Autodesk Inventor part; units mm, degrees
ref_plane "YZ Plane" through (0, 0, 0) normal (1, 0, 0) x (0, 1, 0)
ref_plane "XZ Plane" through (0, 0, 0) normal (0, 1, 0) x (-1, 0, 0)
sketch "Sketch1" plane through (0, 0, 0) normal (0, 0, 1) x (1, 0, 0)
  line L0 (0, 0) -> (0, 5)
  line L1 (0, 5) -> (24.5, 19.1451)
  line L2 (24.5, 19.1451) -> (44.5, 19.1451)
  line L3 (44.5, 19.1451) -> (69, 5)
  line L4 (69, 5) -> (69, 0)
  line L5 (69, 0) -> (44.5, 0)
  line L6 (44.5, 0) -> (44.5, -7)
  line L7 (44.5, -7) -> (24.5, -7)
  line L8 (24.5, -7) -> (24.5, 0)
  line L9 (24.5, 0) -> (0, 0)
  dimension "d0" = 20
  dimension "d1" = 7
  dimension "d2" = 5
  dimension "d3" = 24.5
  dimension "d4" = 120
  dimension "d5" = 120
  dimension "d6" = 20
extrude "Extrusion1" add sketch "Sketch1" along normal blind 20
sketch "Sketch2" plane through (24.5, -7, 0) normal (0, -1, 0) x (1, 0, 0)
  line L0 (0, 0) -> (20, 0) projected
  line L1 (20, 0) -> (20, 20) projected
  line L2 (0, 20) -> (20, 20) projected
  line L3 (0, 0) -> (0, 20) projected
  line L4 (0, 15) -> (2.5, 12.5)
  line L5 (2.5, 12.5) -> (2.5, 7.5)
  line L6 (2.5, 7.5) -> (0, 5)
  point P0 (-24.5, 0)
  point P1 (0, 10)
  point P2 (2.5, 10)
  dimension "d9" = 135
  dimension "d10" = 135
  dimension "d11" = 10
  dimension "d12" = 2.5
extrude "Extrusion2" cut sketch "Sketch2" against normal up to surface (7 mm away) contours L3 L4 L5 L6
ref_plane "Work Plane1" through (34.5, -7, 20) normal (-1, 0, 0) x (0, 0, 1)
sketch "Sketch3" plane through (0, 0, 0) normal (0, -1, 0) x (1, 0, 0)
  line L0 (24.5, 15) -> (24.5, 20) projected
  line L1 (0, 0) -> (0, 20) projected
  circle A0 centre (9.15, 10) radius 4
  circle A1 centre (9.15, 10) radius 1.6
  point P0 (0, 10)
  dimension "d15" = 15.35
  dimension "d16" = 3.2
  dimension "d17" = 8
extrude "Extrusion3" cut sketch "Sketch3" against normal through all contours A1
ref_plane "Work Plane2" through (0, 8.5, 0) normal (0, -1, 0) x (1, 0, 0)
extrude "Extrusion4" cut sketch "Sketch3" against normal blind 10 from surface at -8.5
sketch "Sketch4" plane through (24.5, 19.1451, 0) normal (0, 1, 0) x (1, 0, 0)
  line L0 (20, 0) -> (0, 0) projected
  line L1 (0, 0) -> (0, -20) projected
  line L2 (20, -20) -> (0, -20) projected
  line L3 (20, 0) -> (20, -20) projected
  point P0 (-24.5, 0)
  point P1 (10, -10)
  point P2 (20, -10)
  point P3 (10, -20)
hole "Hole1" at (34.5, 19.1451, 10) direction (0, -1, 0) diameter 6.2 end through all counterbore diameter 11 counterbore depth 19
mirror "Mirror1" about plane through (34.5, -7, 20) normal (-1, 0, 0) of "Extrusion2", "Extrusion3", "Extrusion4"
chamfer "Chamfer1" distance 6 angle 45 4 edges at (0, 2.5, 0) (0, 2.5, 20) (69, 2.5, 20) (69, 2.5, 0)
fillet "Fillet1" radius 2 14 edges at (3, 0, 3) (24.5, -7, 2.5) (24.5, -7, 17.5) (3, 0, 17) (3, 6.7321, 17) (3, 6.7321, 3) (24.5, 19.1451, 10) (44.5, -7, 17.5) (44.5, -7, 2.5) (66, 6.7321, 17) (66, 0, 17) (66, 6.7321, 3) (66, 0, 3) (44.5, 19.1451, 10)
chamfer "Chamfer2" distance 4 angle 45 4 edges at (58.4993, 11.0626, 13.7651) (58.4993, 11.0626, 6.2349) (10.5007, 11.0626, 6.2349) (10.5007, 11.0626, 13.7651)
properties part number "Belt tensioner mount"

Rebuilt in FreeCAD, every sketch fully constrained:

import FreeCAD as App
import Part
import Sketcher
from FreeCAD import Vector
Q = App.Units.Quantity


def edges_at(feature, points):
    """Names of the edges that pass closest to the given points."""
    edges = feature.Shape.Edges
    near = lambda p: min(range(len(edges)), key=lambda i: edges[i].distToShape(Part.Vertex(*p))[0])
    return sorted({f"Edge{near(p) + 1}" for p in points})

doc = App.newDocument("Part")
body = doc.addObject("PartDesign::Body", "Body")

# Sketch on XY plane
sketch1 = doc.addObject("Sketcher::SketchObject", "Sketch")
body.addObject(sketch1)
sketch1.AttachmentSupport = (doc.XY_Plane, [""])
sketch1.MapMode = "FlatFace"
sketch1.addGeometry([
    Part.LineSegment(Vector(0, 5, 0), Vector(0, 0, 0)),  # 0
    Part.LineSegment(Vector(0, 0, 0), Vector(24.5, 0, 0)),  # 1
    Part.LineSegment(Vector(24.5, 0, 0), Vector(24.5, -7, 0)),  # 2
    Part.LineSegment(Vector(24.5, -7, 0), Vector(44.5, -7, 0)),  # 3
    Part.LineSegment(Vector(44.5, -7, 0), Vector(44.5, 0, 0)),  # 4
    Part.LineSegment(Vector(44.5, 0, 0), Vector(69, 0, 0)),  # 5
    Part.LineSegment(Vector(69, 0, 0), Vector(69, 5, 0)),  # 6
    Part.LineSegment(Vector(69, 5, 0), Vector(44.5, 19.1451, 0)),  # 7
    Part.LineSegment(Vector(44.5, 19.1451, 0), Vector(24.5, 19.1451, 0)),  # 8
    Part.LineSegment(Vector(24.5, 19.1451, 0), Vector(0, 5, 0)),  # 9
], False)
sketch1.addConstraint([
    Sketcher.Constraint("Coincident", 0, 2, 1, 1),
    Sketcher.Constraint("Coincident", 1, 2, 2, 1),
    Sketcher.Constraint("Coincident", 2, 2, 3, 1),
    Sketcher.Constraint("Coincident", 3, 2, 4, 1),
    Sketcher.Constraint("Coincident", 4, 2, 5, 1),
    Sketcher.Constraint("Coincident", 5, 2, 6, 1),
    Sketcher.Constraint("Coincident", 6, 2, 7, 1),
    Sketcher.Constraint("Coincident", 7, 2, 8, 1),
    Sketcher.Constraint("Coincident", 8, 2, 9, 1),
    Sketcher.Constraint("Coincident", 9, 2, 0, 1),
    Sketcher.Constraint("Vertical", 0),
    Sketcher.Constraint("Horizontal", 1),
    Sketcher.Constraint("Vertical", 2),
    Sketcher.Constraint("Horizontal", 3),
    Sketcher.Constraint("Vertical", 4),
    Sketcher.Constraint("Horizontal", 5),
    Sketcher.Constraint("Vertical", 6),
    Sketcher.Constraint("Horizontal", 8),
    Sketcher.Constraint("Coincident", 0, 2, -1, 1),
    Sketcher.Constraint("PointOnObject", 4, 2, -1),
    Sketcher.Constraint("Horizontal", 6, 2, 9, 2),
    Sketcher.Constraint("Vertical", 4, 2, 7, 2),
    Sketcher.Constraint("Vertical", 2, 2, 8, 2),
    Sketcher.Constraint("Equal", 1, 5),
    Sketcher.Constraint("DistanceX", 3, 1, 3, 2, 20.0),
    Sketcher.Constraint("DistanceY", 0, 2, 0, 1, 5.0),
    Sketcher.Constraint("DistanceY", 2, 2, 2, 1, 7.0),
    Sketcher.Constraint("DistanceX", 1, 1, 1, 2, 24.5),
    Sketcher.Constraint("Angle", 7, Q("150 deg")),
])
pad1 = doc.addObject("PartDesign::Pad", "Pad")
body.addObject(pad1)
pad1.Profile = sketch1
pad1.Length = 20

# Sketch on XZ plane
sketch2 = doc.addObject("Sketcher::SketchObject", "Sketch001")
body.addObject(sketch2)
sketch2.AttachmentSupport = (doc.XZ_Plane, [""])
sketch2.MapMode = "FlatFace"
sketch2.AttachmentOffset = App.Placement(Vector(0, 0, 7), App.Rotation())
sketch2.addGeometry([
    Part.LineSegment(Vector(24.5, 15, 0), Vector(24.5, 5, 0)),
    Part.LineSegment(Vector(24.5, 5, 0), Vector(27, 7.5, 0)),
    Part.LineSegment(Vector(27, 7.5, 0), Vector(27, 12.5, 0)),
    Part.LineSegment(Vector(27, 12.5, 0), Vector(24.5, 15, 0)),
], False)
sketch2.addConstraint([
    Sketcher.Constraint("Coincident", 0, 2, 1, 1),
    Sketcher.Constraint("Coincident", 1, 2, 2, 1),
    Sketcher.Constraint("Coincident", 2, 2, 3, 1),
    Sketcher.Constraint("Coincident", 3, 2, 0, 1),
    Sketcher.Constraint("Vertical", 0),
    Sketcher.Constraint("Vertical", 2),
    Sketcher.Constraint("Perpendicular", 1, 3),
    Sketcher.Constraint("Equal", 1, 3),
    Sketcher.Constraint("DistanceY", 0, 2, 0, 1, 10.0),
    Sketcher.Constraint("DistanceX", 0, 2, 1, 2, 2.5),
    Sketcher.Constraint("DistanceY", -1, 1, 0, 2, 5.0),
    Sketcher.Constraint("DistanceX", -1, 1, 1, 2, 27.0),
])
pocket1 = doc.addObject("PartDesign::Pocket", "Pocket")
body.addObject(pocket1)
pocket1.Profile = sketch2
pocket1.Length = 7

# Sketch on XZ plane
sketch3 = doc.addObject("Sketcher::SketchObject", "Sketch002")
body.addObject(sketch3)
sketch3.AttachmentSupport = (doc.XZ_Plane, [""])
sketch3.MapMode = "FlatFace"
sketch3.addGeometry(Part.Circle(Vector(9.15, 10, 0), Vector(0, 0, 1), 1.6), False)
sketch3.addConstraint([
    Sketcher.Constraint("Diameter", 0, 3.2),
    Sketcher.Constraint("DistanceY", -1, 1, 0, 3, 10.0),
    Sketcher.Constraint("DistanceX", -1, 1, 0, 3, 9.15),
])
pocket2 = doc.addObject("PartDesign::Pocket", "Pocket001")
body.addObject(pocket2)
pocket2.Profile = sketch3
pocket2.Type = "ThroughAll"

# Sketch on XZ plane
sketch4 = doc.addObject("Sketcher::SketchObject", "Sketch003")
body.addObject(sketch4)
sketch4.AttachmentSupport = (doc.XZ_Plane, [""])
sketch4.MapMode = "FlatFace"
sketch4.AttachmentOffset = App.Placement(Vector(0, 0, -8.5), App.Rotation())
sketch4.addGeometry([
    Part.Circle(Vector(9.15, 10, 0), Vector(0, 0, 1), 4),
    Part.Circle(Vector(9.15, 10, 0), Vector(0, 0, 1), 1.6),
], False)
sketch4.addConstraint([
    Sketcher.Constraint("Coincident", 1, 3, 0, 3),
    Sketcher.Constraint("Diameter", 0, 8.0),
    Sketcher.Constraint("Diameter", 1, 3.2),
    Sketcher.Constraint("DistanceY", -1, 1, 0, 3, 10.0),
    Sketcher.Constraint("DistanceX", -1, 1, 0, 3, 9.15),
])
pocket3 = doc.addObject("PartDesign::Pocket", "Pocket002")
body.addObject(pocket3)
pocket3.Profile = sketch4
pocket3.Length = 10

# Sketch on XZ plane
sketch5 = doc.addObject("Sketcher::SketchObject", "Sketch004")
body.addObject(sketch5)
sketch5.AttachmentSupport = (doc.XZ_Plane, [""])
sketch5.MapMode = "FlatFace"
sketch5.AttachmentOffset = App.Placement(Vector(0, 0, -19.1451), App.Rotation())
sketch5.addGeometry(Part.Circle(Vector(34.5, 10, 0), Vector(0, 0, 1), 3.1), False)
sketch5.addConstraint([
    Sketcher.Constraint("Diameter", 0, 6.2),
    Sketcher.Constraint("DistanceY", -1, 1, 0, 3, 10.0),
    Sketcher.Constraint("DistanceX", -1, 1, 0, 3, 34.5),
])
doc.recompute()
hole = doc.addObject("PartDesign::Hole", "Hole")
body.addObject(hole)
hole.Profile = sketch5
hole.ThreadType = "None"
hole.Diameter = 6.2
hole.DepthType = "ThroughAll"
hole.HoleCutType = "Counterbore"
hole.HoleCutDiameter = 11
hole.HoleCutDepth = 19
hole.Reversed = True
doc.recompute()

datumplane = doc.addObject("PartDesign::Plane", "DatumPlane")
body.addObject(datumplane)
datumplane.AttachmentSupport = (doc.YZ_Plane, [""])
datumplane.MapMode = "FlatFace"
datumplane.AttachmentOffset = App.Placement(Vector(0, 0, 34.5), App.Rotation())
mirrored = doc.addObject("PartDesign::Mirrored", "Mirrored")
body.addObject(mirrored)
mirrored.Originals = [pocket1, pocket2, pocket3]
mirrored.MirrorPlane = (datumplane, [""])
body.Tip = mirrored
doc.recompute()

chamfer = doc.addObject("PartDesign::Chamfer", "Chamfer")
body.addObject(chamfer)
chamfer.Base = (mirrored, edges_at(mirrored, [
    (0, 2.5, 0),
    (0, 2.5, 20),
    (69, 2.5, 20),
    (69, 2.5, 0),
]))
chamfer.Size = 6
doc.recompute()

fillet = doc.addObject("PartDesign::Fillet", "Fillet")
body.addObject(fillet)
fillet.Base = (chamfer, edges_at(chamfer, [
    (3, 0, 3),
    (24.5, -7, 2.5),
    (24.5, -7, 17.5),
    (3, 0, 17),
    (3, 6.732, 17),
    (3, 6.732, 3),
    (24.5, 19.145, 10),
    (44.5, -7, 17.5),
    (44.5, -7, 2.5),
    (66, 6.732, 17),
    (66, 0, 17),
    (66, 6.732, 3),
    (66, 0, 3),
    (44.5, 19.145, 10),
]))
fillet.Radius = 2
doc.recompute()

chamfer2 = doc.addObject("PartDesign::Chamfer", "Chamfer001")
body.addObject(chamfer2)
chamfer2.Base = (fillet, edges_at(fillet, [
    (58.499, 11.063, 13.765),
    (58.499, 11.063, 6.235),
    (10.501, 11.063, 6.235),
    (10.501, 11.063, 13.765),
]))
chamfer2.Size = 4

doc.recompute()
